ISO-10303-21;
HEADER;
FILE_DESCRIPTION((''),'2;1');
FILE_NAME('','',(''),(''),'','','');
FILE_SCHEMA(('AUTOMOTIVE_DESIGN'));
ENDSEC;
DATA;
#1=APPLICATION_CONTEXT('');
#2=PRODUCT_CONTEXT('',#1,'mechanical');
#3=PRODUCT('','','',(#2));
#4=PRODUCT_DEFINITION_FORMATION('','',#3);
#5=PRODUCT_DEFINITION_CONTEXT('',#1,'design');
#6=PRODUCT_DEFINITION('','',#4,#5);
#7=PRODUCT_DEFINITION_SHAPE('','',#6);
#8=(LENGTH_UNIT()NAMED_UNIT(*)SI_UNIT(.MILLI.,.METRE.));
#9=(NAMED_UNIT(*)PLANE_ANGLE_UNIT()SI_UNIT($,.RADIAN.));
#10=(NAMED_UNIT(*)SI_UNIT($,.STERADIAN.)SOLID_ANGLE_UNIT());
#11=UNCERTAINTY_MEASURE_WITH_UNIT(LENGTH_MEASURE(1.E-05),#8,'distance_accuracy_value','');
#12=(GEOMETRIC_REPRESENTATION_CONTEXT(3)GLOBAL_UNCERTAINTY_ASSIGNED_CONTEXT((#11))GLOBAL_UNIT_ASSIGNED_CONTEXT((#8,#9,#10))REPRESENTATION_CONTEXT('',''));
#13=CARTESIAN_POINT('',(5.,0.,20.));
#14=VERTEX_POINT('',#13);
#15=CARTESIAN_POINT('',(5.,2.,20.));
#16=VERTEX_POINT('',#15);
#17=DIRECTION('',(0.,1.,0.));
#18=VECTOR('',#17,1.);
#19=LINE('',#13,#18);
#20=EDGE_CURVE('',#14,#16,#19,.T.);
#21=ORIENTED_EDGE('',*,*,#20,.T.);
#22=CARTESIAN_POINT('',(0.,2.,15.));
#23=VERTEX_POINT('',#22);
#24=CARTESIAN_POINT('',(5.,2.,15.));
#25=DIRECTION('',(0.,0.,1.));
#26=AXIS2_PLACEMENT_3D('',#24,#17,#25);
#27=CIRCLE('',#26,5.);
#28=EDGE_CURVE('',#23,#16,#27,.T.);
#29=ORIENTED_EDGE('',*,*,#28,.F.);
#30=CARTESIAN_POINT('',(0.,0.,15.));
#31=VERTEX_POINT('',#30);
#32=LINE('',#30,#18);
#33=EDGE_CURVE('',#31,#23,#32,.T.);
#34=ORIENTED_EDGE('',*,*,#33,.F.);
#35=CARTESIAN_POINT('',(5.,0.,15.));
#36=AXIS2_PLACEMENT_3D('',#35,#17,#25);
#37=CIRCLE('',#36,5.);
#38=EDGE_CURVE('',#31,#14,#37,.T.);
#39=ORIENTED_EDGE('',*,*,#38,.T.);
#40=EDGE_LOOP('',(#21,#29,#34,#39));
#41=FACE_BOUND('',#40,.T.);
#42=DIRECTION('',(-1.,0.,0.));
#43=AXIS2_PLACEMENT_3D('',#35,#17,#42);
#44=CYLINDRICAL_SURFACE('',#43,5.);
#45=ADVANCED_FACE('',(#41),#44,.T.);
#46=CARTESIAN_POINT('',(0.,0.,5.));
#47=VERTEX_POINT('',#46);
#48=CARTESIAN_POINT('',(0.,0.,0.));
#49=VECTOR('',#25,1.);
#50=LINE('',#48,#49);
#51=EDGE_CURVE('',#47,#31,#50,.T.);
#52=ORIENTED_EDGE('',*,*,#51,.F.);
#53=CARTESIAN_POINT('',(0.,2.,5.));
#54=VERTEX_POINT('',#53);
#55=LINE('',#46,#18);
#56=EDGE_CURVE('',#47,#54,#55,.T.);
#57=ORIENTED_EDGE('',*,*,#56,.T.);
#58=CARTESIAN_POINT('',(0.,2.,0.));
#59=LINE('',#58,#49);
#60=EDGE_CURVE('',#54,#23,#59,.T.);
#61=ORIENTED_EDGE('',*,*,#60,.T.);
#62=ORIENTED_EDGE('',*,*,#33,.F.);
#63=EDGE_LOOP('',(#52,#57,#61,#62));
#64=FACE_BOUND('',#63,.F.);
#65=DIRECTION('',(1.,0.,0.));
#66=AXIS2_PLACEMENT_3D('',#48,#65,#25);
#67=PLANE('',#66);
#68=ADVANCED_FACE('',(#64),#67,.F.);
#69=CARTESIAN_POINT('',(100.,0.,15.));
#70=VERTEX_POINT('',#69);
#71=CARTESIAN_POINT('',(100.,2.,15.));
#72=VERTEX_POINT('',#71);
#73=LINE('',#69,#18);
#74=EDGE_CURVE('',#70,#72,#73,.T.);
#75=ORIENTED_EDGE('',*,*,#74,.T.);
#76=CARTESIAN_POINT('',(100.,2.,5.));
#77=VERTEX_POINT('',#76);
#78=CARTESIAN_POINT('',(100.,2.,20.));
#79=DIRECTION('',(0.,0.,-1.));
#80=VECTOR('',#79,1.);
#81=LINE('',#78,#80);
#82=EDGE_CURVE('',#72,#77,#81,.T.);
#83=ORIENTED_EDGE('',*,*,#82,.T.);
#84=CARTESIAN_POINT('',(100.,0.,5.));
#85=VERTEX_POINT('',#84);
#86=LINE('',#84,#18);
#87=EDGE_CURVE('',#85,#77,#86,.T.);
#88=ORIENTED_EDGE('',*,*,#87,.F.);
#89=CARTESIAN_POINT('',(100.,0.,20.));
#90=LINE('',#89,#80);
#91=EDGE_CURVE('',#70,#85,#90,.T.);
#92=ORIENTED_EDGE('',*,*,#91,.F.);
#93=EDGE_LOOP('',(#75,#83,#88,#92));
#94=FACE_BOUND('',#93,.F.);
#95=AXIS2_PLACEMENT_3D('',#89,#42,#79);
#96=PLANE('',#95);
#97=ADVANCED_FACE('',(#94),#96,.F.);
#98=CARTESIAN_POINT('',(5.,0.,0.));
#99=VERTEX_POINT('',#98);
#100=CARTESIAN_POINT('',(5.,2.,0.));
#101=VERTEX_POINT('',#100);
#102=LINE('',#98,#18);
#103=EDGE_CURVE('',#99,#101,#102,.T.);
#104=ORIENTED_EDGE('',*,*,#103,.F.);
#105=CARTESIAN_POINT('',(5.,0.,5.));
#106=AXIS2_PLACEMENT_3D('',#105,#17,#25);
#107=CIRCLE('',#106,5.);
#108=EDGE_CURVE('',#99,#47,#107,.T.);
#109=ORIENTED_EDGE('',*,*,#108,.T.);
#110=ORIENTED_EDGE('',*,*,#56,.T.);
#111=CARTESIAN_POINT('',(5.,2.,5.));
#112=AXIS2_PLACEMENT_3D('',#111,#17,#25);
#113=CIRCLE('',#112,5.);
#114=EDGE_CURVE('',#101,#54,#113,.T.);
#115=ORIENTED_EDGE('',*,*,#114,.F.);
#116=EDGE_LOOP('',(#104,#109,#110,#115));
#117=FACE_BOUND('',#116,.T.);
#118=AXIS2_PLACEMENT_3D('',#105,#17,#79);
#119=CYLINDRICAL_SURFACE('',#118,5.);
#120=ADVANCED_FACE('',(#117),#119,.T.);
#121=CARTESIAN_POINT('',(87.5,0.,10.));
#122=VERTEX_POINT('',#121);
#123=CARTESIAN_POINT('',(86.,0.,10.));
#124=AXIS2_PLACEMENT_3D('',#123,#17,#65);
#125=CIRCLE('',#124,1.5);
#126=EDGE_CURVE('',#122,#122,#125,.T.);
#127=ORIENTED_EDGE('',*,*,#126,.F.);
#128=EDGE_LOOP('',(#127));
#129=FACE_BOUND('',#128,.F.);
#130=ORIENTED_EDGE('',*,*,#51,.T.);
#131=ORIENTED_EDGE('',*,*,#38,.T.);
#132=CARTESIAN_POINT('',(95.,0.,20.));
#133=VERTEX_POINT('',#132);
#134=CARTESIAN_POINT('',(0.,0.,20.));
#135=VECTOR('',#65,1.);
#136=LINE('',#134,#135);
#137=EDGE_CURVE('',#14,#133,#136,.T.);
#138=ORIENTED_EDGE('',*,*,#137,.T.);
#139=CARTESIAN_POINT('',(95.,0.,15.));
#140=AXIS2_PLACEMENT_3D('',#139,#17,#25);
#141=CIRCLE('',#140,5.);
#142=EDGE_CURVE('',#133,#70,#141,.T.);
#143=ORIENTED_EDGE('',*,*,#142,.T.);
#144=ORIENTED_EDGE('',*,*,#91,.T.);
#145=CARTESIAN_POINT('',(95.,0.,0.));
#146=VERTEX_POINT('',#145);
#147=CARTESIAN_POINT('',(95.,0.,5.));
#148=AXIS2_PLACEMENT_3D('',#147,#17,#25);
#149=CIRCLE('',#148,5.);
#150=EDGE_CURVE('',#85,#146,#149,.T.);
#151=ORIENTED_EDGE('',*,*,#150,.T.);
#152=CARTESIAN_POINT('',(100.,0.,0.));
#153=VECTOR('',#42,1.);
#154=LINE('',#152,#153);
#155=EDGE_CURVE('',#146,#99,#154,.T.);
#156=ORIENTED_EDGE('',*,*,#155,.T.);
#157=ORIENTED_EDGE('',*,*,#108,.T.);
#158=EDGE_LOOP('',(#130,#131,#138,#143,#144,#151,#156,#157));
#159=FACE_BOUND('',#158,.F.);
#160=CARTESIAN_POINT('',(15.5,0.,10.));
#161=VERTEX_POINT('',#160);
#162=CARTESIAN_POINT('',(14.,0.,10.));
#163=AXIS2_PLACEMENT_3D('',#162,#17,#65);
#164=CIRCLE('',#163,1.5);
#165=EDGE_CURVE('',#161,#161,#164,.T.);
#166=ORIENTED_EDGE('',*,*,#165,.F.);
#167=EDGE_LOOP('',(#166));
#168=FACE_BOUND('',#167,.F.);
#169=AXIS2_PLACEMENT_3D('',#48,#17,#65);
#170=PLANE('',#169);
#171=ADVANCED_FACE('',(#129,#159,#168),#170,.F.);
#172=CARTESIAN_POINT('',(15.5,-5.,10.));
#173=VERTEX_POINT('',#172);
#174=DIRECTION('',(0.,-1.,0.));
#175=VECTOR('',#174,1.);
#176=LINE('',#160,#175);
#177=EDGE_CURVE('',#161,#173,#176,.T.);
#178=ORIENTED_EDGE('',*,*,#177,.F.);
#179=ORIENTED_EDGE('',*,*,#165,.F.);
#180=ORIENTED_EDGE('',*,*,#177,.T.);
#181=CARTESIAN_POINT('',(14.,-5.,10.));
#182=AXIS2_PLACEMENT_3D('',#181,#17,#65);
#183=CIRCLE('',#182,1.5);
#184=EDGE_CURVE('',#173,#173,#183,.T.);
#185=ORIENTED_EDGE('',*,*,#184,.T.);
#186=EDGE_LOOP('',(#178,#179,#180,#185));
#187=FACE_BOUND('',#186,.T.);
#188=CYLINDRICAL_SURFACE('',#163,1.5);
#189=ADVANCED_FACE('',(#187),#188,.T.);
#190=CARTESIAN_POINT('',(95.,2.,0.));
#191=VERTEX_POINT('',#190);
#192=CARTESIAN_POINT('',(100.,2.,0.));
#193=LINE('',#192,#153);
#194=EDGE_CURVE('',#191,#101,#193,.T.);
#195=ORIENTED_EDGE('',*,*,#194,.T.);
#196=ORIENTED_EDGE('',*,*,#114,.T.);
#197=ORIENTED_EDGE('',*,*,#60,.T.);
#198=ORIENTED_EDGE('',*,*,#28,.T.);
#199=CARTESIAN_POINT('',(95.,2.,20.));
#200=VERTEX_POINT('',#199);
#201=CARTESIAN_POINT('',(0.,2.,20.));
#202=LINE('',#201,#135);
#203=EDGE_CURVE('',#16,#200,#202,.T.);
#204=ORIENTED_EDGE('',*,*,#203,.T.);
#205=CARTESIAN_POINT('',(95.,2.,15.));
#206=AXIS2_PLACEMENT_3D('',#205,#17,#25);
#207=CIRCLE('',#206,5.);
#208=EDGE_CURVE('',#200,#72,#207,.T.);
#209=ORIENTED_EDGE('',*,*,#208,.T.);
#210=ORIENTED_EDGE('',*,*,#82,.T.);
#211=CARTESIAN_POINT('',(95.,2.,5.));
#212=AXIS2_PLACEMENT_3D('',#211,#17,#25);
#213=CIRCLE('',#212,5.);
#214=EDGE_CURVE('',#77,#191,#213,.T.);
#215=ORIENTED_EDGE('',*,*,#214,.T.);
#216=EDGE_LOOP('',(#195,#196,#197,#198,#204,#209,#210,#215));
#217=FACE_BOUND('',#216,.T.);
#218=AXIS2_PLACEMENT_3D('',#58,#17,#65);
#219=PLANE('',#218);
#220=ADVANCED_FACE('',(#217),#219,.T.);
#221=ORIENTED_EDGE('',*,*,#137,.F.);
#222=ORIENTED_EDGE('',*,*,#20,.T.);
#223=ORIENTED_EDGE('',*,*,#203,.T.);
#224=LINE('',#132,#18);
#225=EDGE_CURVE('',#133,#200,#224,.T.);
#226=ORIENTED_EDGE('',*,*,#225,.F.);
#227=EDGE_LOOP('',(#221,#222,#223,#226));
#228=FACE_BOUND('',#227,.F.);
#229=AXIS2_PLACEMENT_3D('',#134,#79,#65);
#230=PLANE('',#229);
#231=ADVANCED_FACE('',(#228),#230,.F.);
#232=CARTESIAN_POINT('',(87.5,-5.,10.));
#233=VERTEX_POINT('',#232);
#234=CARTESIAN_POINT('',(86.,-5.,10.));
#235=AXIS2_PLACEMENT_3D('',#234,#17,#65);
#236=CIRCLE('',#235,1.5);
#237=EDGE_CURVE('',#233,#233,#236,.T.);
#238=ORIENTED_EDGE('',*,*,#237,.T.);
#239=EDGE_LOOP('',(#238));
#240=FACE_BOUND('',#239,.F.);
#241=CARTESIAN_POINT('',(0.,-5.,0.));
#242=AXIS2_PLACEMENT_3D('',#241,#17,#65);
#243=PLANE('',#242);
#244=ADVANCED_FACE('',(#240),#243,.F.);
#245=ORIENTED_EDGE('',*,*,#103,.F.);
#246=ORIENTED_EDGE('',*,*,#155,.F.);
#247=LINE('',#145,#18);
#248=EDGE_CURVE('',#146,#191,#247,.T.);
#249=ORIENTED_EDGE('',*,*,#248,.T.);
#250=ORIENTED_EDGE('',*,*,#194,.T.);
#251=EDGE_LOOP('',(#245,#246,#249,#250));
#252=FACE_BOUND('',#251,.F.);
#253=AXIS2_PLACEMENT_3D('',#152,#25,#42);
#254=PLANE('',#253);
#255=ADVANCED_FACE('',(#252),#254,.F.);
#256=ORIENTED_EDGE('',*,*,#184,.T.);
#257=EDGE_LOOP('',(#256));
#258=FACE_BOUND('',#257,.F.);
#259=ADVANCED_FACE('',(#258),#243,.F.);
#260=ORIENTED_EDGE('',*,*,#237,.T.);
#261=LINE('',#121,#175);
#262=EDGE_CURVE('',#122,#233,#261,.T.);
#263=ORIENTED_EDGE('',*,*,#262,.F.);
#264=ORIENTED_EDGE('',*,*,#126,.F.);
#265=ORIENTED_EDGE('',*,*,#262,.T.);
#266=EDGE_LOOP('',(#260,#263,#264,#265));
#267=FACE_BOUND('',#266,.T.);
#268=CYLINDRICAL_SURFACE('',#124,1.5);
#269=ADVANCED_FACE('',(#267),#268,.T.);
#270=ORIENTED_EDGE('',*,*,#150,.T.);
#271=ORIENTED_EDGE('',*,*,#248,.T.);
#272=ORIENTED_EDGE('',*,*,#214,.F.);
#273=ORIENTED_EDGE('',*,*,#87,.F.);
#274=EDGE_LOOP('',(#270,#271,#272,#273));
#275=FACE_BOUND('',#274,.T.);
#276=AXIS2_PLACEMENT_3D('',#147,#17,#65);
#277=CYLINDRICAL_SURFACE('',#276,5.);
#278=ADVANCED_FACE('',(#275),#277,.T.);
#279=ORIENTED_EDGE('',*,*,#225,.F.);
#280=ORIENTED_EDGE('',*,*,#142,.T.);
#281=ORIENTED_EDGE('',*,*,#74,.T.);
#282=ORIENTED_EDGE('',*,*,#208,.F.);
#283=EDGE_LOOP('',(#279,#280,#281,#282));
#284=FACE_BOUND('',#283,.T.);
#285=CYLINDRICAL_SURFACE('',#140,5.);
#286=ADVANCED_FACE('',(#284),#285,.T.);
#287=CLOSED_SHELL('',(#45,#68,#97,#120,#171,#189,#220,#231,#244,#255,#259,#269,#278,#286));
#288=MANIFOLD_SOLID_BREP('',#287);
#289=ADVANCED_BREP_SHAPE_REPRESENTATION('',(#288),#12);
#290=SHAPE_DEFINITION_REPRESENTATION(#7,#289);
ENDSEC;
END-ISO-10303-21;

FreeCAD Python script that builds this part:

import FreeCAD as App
import Part
import Sketcher
from FreeCAD import Vector
Q = App.Units.Quantity


def edges_at(feature, points):
    """Names of the edges that pass closest to the given points."""
    edges = feature.Shape.Edges
    near = lambda p: min(range(len(edges)), key=lambda i: edges[i].distToShape(Part.Vertex(*p))[0])
    return sorted({f"Edge{near(p) + 1}" for p in points})

doc = App.newDocument("Part")
params = doc.addObject("Spreadsheet::Sheet", "Params")
for row, (alias, value) in enumerate([
    ("sketch1_width", "100 mm"),
    ("sketch1_height", "20 mm"),
    ("pad1_length", "2 mm"),
    ("sketch2_diameter", "3 mm"),
    ("pad2_length", "5 mm"),
    ("sketch3_diameter", "3 mm"),
    ("pad3_length", "5 mm"),
    ("fillet_radius", "5 mm"),
    ("fillet2_radius", "5 mm"),
    ("fillet3_radius", "5 mm"),
    ("fillet4_radius", "5 mm"),
], start=1):
    params.set(f"A{row}", alias)
    params.set(f"B{row}", "=" + value)
    params.setAlias(f"B{row}", alias)

body = doc.addObject("PartDesign::Body", "Body")

# Sketch on XZ plane
sketch1 = body.newObject("Sketcher::SketchObject", "Sketch")
sketch1.AttachmentSupport = (doc.getObject("XZ_Plane"), [""])
sketch1.MapMode = "FlatFace"
sketch1.addGeometry([
    Part.LineSegment(Vector(0, 0, 0), Vector(0, 20, 0)),
    Part.LineSegment(Vector(0, 20, 0), Vector(100, 20, 0)),
    Part.LineSegment(Vector(100, 20, 0), Vector(100, 0, 0)),
    Part.LineSegment(Vector(100, 0, 0), Vector(0, 0, 0)),
], False)
sketch1.addConstraint([
    Sketcher.Constraint("Coincident", 0, 2, 1, 1),
    Sketcher.Constraint("Coincident", 1, 2, 2, 1),
    Sketcher.Constraint("Coincident", 2, 2, 3, 1),
    Sketcher.Constraint("Coincident", 3, 2, 0, 1),
    Sketcher.Constraint("Vertical", 0),
    Sketcher.Constraint("Horizontal", 1),
    Sketcher.Constraint("Vertical", 2),
    Sketcher.Constraint("Horizontal", 3),
    Sketcher.Constraint("Coincident", 3, 2, -1, 1),
    Sketcher.Constraint("DistanceX", 1, 1, 1, 2, Q("100 mm")),
    Sketcher.Constraint("DistanceY", 0, 1, 0, 2, Q("20 mm")),
])
sketch1.setExpression("Constraints[9]", "Params.sketch1_width")
sketch1.setExpression("Constraints[10]", "Params.sketch1_height")
pad1 = body.newObject("PartDesign::Pad", "Pad")
pad1.Profile = sketch1
pad1.setExpression("Length", "Params.pad1_length")
pad1.Reversed = True

# Sketch on XZ plane
sketch2 = body.newObject("Sketcher::SketchObject", "Sketch001")
sketch2.AttachmentSupport = (doc.getObject("XZ_Plane"), [""])
sketch2.MapMode = "FlatFace"
sketch2.addGeometry(Part.Circle(Vector(14, 10, 0), Vector(0, 0, 1), 1.5), False)
sketch2.addConstraint([
    Sketcher.Constraint("Diameter", 0, Q("3 mm")),
    Sketcher.Constraint("DistanceX", -1, 1, 0, 3, Q("14 mm")),
    Sketcher.Constraint("DistanceY", -1, 1, 0, 3, Q("10 mm")),
])
sketch2.setExpression("Constraints[0]", "Params.sketch2_diameter")
pad2 = body.newObject("PartDesign::Pad", "Pad001")
pad2.Profile = sketch2
pad2.setExpression("Length", "Params.pad2_length")

# Sketch on XZ plane
sketch3 = body.newObject("Sketcher::SketchObject", "Sketch002")
sketch3.AttachmentSupport = (doc.getObject("XZ_Plane"), [""])
sketch3.MapMode = "FlatFace"
sketch3.addGeometry(Part.Circle(Vector(86, 10, 0), Vector(0, 0, 1), 1.5), False)
sketch3.addConstraint([
    Sketcher.Constraint("Diameter", 0, Q("3 mm")),
    Sketcher.Constraint("DistanceX", -1, 1, 0, 3, Q("86 mm")),
    Sketcher.Constraint("DistanceY", -1, 1, 0, 3, Q("10 mm")),
])
sketch3.setExpression("Constraints[0]", "Params.sketch3_diameter")
pad3 = body.newObject("PartDesign::Pad", "Pad002")
pad3.Profile = sketch3
pad3.setExpression("Length", "Params.pad3_length")
doc.recompute()

fillet = body.newObject("PartDesign::Fillet", "Fillet")
fillet.Base = (pad3, edges_at(pad3, [(0, 1, 20)]))
fillet.setExpression("Radius", "Params.fillet_radius")
doc.recompute()

fillet2 = body.newObject("PartDesign::Fillet", "Fillet001")
fillet2.Base = (fillet, edges_at(fillet, [(100, 1, 20)]))
fillet2.setExpression("Radius", "Params.fillet2_radius")
doc.recompute()

fillet3 = body.newObject("PartDesign::Fillet", "Fillet002")
fillet3.Base = (fillet2, edges_at(fillet2, [(100, 1, 0)]))
fillet3.setExpression("Radius", "Params.fillet3_radius")
doc.recompute()

fillet4 = body.newObject("PartDesign::Fillet", "Fillet003")
fillet4.Base = (fillet3, edges_at(fillet3, [(0, 1, 0)]))
fillet4.setExpression("Radius", "Params.fillet4_radius")

doc.recompute()
